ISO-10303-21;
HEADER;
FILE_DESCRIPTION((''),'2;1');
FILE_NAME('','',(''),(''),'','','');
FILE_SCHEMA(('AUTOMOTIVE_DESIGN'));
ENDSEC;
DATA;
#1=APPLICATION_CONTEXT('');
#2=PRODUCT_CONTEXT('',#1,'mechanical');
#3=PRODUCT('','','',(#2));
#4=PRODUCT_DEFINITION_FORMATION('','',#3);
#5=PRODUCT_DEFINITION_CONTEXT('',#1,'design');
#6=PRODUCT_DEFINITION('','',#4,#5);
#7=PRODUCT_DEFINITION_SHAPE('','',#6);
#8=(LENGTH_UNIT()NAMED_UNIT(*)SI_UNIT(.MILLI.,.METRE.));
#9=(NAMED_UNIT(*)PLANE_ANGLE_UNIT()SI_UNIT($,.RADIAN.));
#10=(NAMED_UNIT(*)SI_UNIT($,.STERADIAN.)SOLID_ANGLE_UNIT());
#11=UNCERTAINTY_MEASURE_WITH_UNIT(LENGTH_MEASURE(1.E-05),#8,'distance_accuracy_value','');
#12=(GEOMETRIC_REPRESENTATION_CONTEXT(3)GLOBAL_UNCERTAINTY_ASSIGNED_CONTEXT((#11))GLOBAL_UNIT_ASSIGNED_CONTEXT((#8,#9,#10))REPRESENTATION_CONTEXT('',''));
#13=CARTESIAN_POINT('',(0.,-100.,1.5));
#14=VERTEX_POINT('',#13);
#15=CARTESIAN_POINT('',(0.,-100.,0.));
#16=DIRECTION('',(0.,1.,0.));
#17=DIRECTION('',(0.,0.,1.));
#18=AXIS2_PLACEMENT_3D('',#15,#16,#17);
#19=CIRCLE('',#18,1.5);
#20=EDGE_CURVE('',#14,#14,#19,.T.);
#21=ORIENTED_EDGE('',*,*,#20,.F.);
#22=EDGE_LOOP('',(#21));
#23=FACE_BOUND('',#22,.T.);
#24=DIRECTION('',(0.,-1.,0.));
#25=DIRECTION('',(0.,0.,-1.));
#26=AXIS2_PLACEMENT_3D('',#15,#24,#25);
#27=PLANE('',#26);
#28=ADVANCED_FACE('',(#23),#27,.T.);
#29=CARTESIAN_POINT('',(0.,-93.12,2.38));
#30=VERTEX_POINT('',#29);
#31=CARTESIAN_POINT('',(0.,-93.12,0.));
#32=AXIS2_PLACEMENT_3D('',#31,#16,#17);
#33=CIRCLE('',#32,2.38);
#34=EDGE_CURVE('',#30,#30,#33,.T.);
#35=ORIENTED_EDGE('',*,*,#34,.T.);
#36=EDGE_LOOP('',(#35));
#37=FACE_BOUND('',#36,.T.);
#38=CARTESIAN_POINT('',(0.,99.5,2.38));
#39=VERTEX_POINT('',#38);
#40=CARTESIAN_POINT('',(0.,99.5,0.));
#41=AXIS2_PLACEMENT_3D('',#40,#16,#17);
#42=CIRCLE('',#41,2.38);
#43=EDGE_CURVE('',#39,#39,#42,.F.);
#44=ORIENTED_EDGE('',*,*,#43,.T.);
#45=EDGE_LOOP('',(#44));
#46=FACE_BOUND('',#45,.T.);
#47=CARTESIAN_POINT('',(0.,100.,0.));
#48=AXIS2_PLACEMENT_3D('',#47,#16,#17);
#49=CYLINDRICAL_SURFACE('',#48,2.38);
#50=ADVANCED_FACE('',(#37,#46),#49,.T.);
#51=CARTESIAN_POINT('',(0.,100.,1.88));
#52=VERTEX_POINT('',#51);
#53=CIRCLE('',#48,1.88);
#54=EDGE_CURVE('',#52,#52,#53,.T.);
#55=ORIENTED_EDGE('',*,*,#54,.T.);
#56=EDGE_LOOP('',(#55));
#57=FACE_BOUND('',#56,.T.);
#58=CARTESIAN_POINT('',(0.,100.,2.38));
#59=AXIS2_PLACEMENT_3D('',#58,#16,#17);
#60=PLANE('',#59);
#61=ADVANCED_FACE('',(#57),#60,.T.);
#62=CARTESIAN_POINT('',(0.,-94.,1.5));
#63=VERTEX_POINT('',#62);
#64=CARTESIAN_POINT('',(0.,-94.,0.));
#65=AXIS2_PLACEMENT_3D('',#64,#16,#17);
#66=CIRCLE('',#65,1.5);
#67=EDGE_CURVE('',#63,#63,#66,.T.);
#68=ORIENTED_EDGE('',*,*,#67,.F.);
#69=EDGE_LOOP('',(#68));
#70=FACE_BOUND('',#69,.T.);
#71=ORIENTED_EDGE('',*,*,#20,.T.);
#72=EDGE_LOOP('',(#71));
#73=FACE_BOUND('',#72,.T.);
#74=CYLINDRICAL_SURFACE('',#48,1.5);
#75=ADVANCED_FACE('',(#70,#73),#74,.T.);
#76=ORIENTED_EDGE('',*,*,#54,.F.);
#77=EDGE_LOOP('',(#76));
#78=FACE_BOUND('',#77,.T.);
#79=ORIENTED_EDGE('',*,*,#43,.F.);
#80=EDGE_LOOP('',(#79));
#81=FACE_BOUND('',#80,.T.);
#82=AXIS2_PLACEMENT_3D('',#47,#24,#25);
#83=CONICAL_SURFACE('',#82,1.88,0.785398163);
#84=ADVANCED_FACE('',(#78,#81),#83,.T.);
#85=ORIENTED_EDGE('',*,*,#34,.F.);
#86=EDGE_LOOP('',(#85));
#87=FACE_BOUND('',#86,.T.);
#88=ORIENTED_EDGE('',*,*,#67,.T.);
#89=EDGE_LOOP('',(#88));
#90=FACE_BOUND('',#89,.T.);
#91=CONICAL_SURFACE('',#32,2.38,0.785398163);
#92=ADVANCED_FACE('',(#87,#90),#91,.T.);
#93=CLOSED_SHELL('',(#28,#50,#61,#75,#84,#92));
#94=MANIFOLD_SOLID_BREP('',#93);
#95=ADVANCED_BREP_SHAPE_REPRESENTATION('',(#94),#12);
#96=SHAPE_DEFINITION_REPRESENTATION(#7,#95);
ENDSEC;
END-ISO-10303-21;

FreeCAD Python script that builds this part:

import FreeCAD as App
import Part
import Sketcher

V = App.Vector
Q = App.Units.Quantity


def edges_at(feature, points):
    """Names of the edges that pass closest to the given points."""
    edges = feature.Shape.Edges
    near = lambda p: min(range(len(edges)), key=lambda i: edges[i].distToShape(Part.Vertex(*p))[0])
    return sorted({f"Edge{near(p) + 1}" for p in points})


def add_polygon(sketch, points):
    """Adds a closed chain of lines whose ends are joined by coincident constraints."""
    first, n = sketch.GeometryCount, len(points)
    for a, b in zip(points, points[1:] + points[:1]):
        sketch.addGeometry(Part.LineSegment(App.Vector(*a, 0), App.Vector(*b, 0)), False)
    for i in range(n):
        sketch.addConstraint(Sketcher.Constraint("Coincident", first + i, 2, first + (i + 1) % n, 1))

doc = App.newDocument("Part")
params = doc.addObject("Spreadsheet::Sheet", "Params")
for row, (alias, value) in enumerate([
    ("sketch1_width", "200 mm"),
    ("sketch1_width2", "6 mm"),
    ("sketch1_height", "1.5 mm"),
    ("sketch1_width3", "193.12 mm"),
    ("revolution_angle", "360 deg"),
    ("chamfer_size", "0.5 mm"),
], start=1):
    params.set(f"A{row}", alias)
    params.set(f"B{row}", "=" + value)
    params.setAlias(f"B{row}", alias)

body = doc.addObject("PartDesign::Body", "Body")

# Sketch on YZ plane
sketch1 = doc.addObject("Sketcher::SketchObject", "Sketch")
body.addObject(sketch1)
sketch1.AttachmentSupport = (doc.YZ_Plane, [""])
sketch1.MapMode = "FlatFace"
add_polygon(sketch1, [(-100, 0), (100, 0), (100, 2.38), (-93.12, 2.38), (-94, 1.5), (-100, 1.5)])  # lines 0-5
sketch1.addConstraint([
    Sketcher.Constraint("Horizontal", 0),
    Sketcher.Constraint("Vertical", 1),
    Sketcher.Constraint("Horizontal", 2),
    Sketcher.Constraint("Horizontal", 4),
    Sketcher.Constraint("Vertical", 5),
    Sketcher.Constraint("Symmetric", 0, 2, 5, 2, -1, 1),
    Sketcher.Constraint("DistanceX", 0, 1, 0, 2, Q("200 mm")),
    Sketcher.Constraint("DistanceX", 4, 2, 4, 1, Q("6 mm")),
    Sketcher.Constraint("Angle", 3, Q("-135 deg")),
    Sketcher.Constraint("DistanceY", 5, 2, 5, 1, Q("1.5 mm")),
    Sketcher.Constraint("DistanceX", 2, 2, 2, 1, Q("193.12 mm")),
])
sketch1.setExpression("Constraints[12]", "Params.sketch1_width")
sketch1.setExpression("Constraints[13]", "Params.sketch1_width2")
sketch1.setExpression("Constraints[15]", "Params.sketch1_height")
sketch1.setExpression("Constraints[16]", "Params.sketch1_width3")
revolution = doc.addObject("PartDesign::Revolution", "Revolution")
body.addObject(revolution)
revolution.Profile = sketch1
revolution.ReferenceAxis = (sketch1, ["H_Axis"])
revolution.setExpression("Angle", "Params.revolution_angle")
doc.recompute()

chamfer = doc.addObject("PartDesign::Chamfer", "Chamfer")
body.addObject(chamfer)
chamfer.Base = (revolution, edges_at(revolution, [(0, 100, -2.38)]))
chamfer.setExpression("Size", "Params.chamfer_size")

doc.recompute()
